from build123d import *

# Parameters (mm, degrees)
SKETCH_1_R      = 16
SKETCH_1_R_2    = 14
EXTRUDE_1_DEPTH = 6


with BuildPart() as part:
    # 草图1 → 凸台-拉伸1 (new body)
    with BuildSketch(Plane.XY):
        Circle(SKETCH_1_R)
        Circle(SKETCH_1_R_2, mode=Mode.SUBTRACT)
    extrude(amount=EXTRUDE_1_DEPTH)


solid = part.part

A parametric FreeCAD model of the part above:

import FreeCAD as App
import Part
import Sketcher

V = App.Vector

doc = App.newDocument("Part")
body = doc.addObject("PartDesign::Body", "Body")

# Sketch on XY plane
sketch1 = doc.addObject("Sketcher::SketchObject", "Sketch")
body.addObject(sketch1)
sketch1.AttachmentSupport = (doc.XY_Plane, [""])
sketch1.MapMode = "FlatFace"
sketch1.addGeometry([
    Part.Circle(V(0, 0, 0), V(0, 0, 1), 16),
    Part.Circle(V(0, 0, 0), V(0, 0, 1), 14),
], False)
sketch1.addConstraint([
    Sketcher.Constraint("Coincident", 0, 3, -1, 1),
    Sketcher.Constraint("Coincident", 1, 3, -1, 1),
    Sketcher.Constraint("Diameter", 0, 32.0),
    Sketcher.Constraint("Diameter", 1, 28.0),
])
pad1 = doc.addObject("PartDesign::Pad", "Pad")
body.addObject(pad1)
pad1.Profile = sketch1
pad1.Length = 6

doc.recompute()
